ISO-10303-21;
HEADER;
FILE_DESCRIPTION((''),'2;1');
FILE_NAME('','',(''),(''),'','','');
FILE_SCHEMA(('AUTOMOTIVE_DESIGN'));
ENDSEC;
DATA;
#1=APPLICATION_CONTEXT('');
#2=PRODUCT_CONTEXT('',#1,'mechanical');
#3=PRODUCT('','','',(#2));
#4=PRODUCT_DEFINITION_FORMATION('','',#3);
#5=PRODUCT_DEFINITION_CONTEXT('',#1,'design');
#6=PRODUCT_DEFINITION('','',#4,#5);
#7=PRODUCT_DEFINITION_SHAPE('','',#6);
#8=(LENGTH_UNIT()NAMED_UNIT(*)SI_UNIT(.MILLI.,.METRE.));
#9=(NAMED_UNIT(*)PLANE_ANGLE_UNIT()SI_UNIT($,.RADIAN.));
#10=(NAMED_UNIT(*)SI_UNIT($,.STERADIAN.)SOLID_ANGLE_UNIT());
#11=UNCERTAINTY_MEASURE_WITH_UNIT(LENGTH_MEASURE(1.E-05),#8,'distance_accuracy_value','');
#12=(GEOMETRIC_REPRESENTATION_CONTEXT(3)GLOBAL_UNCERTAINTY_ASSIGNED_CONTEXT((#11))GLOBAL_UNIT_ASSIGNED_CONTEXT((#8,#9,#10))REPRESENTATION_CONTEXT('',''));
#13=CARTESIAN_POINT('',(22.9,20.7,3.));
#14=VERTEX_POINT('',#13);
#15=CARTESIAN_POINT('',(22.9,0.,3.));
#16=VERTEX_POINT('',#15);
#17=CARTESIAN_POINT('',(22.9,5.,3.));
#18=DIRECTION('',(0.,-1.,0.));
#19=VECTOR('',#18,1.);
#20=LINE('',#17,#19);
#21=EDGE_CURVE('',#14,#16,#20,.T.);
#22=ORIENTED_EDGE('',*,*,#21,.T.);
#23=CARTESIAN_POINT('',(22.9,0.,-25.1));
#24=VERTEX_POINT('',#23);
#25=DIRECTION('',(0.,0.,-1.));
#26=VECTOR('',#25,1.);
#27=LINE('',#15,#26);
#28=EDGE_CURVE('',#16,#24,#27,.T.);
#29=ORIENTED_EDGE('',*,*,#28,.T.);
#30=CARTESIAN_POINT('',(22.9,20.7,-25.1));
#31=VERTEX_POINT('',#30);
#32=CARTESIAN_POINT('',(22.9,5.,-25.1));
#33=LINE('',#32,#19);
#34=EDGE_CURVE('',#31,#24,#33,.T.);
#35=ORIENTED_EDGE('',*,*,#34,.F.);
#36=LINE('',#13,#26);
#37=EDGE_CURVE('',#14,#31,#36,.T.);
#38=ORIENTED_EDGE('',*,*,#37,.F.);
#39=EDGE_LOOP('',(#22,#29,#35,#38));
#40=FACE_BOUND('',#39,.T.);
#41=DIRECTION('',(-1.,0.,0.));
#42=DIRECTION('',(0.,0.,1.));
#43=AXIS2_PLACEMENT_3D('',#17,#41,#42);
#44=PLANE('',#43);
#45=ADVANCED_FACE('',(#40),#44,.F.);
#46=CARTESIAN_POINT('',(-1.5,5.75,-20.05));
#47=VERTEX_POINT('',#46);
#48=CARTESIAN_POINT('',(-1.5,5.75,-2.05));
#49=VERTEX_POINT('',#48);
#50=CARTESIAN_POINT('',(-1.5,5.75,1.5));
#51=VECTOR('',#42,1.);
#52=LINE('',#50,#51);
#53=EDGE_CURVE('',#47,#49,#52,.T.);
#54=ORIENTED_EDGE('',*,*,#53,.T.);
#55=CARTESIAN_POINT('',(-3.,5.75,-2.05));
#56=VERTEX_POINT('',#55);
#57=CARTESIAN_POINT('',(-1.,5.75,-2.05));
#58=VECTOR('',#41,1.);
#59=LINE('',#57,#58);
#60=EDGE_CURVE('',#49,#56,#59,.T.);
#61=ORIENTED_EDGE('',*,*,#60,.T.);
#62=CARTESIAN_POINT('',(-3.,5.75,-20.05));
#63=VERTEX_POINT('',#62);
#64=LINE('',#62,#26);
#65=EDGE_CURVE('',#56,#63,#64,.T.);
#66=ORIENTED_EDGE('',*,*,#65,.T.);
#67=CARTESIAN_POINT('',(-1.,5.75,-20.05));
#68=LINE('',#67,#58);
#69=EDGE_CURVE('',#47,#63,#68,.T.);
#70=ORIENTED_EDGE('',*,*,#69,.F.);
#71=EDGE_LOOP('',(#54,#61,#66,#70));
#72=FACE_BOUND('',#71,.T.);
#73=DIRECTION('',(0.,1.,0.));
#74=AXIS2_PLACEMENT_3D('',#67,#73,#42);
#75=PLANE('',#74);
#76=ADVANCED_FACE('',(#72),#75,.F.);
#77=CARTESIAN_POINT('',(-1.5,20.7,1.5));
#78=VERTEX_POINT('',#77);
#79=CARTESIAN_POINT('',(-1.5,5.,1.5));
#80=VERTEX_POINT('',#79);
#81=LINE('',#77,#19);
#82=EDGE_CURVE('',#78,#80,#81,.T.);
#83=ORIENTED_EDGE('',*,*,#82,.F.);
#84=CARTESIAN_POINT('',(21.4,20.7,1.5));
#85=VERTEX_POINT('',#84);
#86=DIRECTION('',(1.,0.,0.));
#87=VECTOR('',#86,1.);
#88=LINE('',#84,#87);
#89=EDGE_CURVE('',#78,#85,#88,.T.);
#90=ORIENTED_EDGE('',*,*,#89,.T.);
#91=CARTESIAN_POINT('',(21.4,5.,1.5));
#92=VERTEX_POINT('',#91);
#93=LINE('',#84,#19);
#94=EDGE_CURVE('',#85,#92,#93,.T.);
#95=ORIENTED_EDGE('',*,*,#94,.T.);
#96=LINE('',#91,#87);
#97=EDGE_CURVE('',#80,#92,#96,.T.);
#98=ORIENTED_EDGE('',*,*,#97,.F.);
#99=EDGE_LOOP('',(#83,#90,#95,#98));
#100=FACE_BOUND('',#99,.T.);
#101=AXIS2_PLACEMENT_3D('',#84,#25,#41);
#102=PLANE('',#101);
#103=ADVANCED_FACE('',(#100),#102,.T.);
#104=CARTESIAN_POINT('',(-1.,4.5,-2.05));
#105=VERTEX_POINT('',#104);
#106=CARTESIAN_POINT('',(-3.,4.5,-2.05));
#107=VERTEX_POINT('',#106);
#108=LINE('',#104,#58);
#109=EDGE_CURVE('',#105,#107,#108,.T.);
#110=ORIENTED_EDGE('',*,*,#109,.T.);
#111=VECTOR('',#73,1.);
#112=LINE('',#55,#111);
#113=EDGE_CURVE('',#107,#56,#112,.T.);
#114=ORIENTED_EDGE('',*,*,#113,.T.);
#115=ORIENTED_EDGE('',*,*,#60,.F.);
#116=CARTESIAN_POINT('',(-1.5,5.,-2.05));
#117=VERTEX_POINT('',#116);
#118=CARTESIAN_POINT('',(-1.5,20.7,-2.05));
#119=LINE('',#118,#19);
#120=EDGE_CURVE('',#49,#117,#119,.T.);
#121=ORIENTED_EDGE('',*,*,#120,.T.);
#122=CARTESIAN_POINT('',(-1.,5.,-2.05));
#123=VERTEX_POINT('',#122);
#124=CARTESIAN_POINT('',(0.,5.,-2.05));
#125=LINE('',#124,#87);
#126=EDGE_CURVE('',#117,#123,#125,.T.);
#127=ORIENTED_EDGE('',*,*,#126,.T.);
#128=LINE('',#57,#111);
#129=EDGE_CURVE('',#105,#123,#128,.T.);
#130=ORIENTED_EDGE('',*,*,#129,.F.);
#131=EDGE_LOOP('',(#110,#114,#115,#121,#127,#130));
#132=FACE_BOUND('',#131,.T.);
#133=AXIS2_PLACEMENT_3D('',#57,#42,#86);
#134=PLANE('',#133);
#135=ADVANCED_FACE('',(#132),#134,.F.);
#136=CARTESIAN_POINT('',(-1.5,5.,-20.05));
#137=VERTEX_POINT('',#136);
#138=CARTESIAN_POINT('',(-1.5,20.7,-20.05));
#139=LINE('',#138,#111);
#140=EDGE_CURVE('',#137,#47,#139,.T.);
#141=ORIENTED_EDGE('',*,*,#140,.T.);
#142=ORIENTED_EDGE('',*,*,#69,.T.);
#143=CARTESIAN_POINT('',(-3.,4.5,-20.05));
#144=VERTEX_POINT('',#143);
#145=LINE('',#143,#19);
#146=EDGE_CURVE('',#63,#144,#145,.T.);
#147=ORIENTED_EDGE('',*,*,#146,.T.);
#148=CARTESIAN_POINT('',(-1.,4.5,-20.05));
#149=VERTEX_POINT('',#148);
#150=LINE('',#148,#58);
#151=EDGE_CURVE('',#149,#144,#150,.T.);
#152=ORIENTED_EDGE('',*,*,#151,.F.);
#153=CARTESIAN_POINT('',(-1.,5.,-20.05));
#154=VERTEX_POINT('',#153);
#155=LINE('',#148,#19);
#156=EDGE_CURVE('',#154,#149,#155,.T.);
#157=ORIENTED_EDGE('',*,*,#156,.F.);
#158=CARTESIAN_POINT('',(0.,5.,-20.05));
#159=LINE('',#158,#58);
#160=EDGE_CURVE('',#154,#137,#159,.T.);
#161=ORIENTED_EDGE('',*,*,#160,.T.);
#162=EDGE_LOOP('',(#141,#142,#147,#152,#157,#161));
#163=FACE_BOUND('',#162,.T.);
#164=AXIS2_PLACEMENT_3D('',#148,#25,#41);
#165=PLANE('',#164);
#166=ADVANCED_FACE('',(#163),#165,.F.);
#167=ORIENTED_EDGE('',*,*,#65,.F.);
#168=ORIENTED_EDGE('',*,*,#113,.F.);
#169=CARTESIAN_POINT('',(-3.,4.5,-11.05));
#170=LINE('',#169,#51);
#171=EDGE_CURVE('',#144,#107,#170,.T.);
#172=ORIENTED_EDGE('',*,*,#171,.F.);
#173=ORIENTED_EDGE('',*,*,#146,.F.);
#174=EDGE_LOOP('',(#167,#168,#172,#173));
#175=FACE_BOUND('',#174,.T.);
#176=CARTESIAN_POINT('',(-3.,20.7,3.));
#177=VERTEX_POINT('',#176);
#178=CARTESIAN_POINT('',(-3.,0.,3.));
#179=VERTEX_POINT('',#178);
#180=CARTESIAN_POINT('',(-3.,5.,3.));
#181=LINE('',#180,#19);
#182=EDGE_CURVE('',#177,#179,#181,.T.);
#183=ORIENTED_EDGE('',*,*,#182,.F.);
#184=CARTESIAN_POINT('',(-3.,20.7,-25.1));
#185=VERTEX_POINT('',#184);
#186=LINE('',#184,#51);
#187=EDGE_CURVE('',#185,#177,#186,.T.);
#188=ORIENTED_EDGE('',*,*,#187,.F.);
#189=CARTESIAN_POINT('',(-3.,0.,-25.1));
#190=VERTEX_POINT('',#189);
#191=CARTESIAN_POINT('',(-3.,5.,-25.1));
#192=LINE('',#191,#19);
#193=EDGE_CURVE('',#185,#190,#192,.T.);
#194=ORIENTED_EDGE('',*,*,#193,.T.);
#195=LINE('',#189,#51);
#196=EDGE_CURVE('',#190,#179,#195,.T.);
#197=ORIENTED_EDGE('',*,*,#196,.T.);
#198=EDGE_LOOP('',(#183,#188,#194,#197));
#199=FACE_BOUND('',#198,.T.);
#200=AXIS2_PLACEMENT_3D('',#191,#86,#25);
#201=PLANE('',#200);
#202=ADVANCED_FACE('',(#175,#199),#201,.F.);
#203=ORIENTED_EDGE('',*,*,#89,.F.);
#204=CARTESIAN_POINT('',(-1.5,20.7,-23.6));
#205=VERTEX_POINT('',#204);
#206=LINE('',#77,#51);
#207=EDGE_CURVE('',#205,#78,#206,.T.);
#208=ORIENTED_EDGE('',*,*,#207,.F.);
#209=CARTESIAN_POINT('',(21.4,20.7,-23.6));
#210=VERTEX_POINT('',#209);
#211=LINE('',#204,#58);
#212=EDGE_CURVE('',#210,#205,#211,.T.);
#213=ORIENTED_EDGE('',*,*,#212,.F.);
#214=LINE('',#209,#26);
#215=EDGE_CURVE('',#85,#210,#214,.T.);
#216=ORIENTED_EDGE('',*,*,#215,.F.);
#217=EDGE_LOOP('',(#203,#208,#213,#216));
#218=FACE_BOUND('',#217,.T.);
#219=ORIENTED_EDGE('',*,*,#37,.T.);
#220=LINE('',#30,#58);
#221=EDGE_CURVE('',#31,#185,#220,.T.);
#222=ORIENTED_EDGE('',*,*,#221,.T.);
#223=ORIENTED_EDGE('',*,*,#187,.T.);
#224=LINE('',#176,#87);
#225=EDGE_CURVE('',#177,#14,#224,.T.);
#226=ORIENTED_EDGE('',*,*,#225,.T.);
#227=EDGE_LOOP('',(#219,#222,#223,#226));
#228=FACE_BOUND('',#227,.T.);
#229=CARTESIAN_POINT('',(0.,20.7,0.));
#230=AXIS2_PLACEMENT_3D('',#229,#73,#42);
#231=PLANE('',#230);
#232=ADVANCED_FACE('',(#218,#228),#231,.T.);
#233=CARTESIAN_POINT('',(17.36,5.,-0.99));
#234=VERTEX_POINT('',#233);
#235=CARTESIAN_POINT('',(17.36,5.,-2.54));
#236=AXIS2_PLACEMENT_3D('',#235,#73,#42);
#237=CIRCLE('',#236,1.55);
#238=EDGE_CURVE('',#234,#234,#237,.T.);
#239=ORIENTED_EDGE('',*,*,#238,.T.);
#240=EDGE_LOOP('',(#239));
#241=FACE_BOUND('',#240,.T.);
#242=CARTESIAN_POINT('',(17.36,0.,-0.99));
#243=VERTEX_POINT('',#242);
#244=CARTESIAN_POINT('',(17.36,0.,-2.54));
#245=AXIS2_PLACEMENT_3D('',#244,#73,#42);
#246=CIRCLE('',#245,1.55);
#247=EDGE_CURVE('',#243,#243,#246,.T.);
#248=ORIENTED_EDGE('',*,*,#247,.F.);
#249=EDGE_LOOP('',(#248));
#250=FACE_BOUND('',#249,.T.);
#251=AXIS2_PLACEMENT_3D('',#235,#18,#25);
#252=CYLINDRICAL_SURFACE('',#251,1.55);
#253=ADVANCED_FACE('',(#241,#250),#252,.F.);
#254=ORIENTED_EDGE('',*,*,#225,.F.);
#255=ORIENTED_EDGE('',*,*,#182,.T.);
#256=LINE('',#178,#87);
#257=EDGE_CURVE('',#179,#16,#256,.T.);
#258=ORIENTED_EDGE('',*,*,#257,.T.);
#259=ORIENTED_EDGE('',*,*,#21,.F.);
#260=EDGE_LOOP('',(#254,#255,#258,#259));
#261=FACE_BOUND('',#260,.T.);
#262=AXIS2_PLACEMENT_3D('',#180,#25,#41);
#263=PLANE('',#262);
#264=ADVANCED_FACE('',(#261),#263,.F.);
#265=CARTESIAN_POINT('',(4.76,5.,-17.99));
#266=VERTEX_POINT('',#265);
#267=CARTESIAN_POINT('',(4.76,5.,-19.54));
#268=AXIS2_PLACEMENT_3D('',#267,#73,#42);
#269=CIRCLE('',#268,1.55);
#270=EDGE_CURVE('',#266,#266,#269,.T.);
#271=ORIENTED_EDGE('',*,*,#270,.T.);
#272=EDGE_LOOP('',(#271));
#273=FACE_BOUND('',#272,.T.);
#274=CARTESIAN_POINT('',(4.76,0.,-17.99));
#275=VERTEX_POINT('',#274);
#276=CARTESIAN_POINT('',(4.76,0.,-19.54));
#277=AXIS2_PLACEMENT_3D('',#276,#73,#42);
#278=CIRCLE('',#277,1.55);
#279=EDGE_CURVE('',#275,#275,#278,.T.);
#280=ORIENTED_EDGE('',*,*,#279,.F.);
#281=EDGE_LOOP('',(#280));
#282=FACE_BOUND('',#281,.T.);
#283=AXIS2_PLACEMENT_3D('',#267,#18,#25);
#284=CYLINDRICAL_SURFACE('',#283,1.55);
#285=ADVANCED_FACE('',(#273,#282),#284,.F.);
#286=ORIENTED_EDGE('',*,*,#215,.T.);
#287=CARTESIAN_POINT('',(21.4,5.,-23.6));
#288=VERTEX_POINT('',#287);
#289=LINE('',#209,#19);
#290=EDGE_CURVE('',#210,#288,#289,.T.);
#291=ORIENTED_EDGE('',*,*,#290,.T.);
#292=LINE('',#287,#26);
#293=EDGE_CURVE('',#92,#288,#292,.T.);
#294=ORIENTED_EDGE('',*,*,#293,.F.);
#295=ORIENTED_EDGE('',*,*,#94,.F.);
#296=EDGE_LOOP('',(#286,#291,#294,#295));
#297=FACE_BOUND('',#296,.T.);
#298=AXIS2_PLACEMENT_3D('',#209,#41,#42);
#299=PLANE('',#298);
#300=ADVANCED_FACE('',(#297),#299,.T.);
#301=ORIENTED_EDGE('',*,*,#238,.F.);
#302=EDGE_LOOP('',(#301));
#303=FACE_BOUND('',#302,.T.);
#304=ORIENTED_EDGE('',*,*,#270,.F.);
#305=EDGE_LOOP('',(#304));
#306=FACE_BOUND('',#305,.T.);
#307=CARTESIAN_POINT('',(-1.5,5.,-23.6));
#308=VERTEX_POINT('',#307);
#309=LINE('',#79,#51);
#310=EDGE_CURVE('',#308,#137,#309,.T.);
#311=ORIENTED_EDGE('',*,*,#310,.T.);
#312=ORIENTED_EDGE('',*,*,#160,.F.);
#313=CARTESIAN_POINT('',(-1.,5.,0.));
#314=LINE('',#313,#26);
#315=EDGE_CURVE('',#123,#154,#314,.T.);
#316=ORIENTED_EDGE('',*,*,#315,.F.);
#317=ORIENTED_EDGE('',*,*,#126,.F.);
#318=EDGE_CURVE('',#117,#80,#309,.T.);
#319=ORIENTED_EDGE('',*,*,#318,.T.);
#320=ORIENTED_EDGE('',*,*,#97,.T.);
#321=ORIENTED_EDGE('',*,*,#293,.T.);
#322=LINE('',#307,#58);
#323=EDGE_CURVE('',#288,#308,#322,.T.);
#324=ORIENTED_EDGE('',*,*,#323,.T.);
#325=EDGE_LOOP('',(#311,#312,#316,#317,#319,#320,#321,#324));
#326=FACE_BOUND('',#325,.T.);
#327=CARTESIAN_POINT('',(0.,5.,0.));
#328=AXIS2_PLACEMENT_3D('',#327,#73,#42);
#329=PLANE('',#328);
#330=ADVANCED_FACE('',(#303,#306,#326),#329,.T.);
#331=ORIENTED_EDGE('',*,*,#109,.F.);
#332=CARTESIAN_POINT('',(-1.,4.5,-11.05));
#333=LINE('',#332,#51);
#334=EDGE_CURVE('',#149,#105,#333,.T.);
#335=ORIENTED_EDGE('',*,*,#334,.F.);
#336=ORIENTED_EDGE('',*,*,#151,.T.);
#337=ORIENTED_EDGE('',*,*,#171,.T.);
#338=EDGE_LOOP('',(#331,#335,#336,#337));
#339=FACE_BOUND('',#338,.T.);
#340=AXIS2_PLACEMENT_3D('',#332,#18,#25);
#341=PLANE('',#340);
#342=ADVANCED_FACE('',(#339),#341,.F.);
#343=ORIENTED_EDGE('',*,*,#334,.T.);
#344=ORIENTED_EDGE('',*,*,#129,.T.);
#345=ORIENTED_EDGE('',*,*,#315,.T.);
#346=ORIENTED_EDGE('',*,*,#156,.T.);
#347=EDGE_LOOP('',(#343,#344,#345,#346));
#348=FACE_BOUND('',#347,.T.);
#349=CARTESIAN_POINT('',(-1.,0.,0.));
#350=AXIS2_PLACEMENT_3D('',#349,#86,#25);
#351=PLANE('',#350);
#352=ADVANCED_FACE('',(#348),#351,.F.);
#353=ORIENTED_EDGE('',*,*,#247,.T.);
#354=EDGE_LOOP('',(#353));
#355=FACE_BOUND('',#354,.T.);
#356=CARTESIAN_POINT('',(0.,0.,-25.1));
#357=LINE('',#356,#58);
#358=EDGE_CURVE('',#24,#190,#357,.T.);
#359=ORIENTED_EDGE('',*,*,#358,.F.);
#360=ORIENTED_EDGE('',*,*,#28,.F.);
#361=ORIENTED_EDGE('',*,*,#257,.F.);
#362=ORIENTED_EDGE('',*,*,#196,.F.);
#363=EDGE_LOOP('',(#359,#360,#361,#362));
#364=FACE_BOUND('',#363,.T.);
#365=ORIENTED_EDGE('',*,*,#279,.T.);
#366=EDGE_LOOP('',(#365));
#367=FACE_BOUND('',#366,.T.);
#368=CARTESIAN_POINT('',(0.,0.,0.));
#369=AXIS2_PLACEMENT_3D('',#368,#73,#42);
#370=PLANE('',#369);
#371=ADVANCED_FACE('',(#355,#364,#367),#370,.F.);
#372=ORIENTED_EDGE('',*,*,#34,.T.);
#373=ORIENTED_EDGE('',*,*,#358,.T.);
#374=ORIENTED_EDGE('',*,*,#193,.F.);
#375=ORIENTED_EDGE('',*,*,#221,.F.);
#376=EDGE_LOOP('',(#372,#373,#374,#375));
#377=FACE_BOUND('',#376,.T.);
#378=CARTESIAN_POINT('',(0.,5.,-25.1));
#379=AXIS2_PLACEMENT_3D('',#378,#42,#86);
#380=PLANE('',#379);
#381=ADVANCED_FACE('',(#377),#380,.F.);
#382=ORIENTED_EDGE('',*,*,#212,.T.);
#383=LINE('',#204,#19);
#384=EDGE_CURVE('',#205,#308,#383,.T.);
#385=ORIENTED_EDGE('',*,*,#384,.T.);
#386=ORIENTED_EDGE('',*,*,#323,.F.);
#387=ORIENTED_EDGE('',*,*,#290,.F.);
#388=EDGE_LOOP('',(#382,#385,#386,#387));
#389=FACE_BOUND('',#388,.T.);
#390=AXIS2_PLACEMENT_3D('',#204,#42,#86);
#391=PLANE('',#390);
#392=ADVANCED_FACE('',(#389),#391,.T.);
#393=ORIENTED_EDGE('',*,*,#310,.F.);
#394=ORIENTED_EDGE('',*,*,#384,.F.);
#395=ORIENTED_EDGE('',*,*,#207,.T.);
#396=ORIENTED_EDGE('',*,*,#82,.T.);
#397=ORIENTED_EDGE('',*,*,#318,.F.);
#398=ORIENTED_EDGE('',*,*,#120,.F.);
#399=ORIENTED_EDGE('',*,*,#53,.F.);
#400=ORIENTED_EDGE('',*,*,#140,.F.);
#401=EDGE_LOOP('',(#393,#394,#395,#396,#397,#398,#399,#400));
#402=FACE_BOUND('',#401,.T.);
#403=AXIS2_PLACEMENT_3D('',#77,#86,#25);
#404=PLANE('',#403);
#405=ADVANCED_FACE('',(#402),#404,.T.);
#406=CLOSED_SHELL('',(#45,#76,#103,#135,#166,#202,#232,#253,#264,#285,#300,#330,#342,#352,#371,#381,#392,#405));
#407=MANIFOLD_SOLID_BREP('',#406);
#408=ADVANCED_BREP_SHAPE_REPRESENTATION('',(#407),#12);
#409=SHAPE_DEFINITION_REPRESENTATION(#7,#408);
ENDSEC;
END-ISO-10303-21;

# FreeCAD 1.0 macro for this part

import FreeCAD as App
import Part
import Sketcher

V = App.Vector

doc = App.newDocument("Part")
params = doc.addObject("Spreadsheet::Sheet", "Params")
for row, (alias, value) in enumerate([
    ("sketch1_diameter", "3.1 mm"),
    ("sketch1_width", "25.9 mm"),
    ("sketch1_height", "28.1 mm"),
    ("pad1_length", "5 mm"),
    ("sketch2_width", "25.9 mm"),
    ("sketch2_width2", "22.9 mm"),
    ("sketch2_height", "28.1 mm"),
    ("sketch2_height2", "25.1 mm"),
    ("pad2_length", "15.7 mm"),
    ("sketch3_height", "18 mm"),
    ("sketch3_width", "1.25 mm"),
    ("pocket1_length", "2 mm"),
], start=1):
    params.set(f"A{row}", alias)
    params.set(f"B{row}", "=" + value)
    params.setAlias(f"B{row}", alias)

body = doc.addObject("PartDesign::Body", "Body")

# Sketch on XZ plane
sketch1 = body.newObject("Sketcher::SketchObject", "Sketch")
sketch1.AttachmentSupport = (doc.getObject("XZ_Plane"), [""])
sketch1.MapMode = "FlatFace"
sketch1.addGeometry(Part.LineSegment(V(-3, -25.1, 0), V(-3, 3, 0)), False)
sketch1.addGeometry(Part.LineSegment(V(-3, 3, 0), V(22.9, 3, 0)), False)
sketch1.addGeometry(Part.LineSegment(V(22.9, 3, 0), V(22.9, -25.1, 0)), False)
sketch1.addGeometry(Part.LineSegment(V(22.9, -25.1, 0), V(-3, -25.1, 0)), False)
sketch1.addGeometry(Part.Circle(V(17.4, -2.5, 0), V(0, 0, 1), 1.6), False)
sketch1.addGeometry(Part.Circle(V(4.8, -19.5, 0), V(0, 0, 1), 1.6), False)
sketch1.addConstraint(Sketcher.Constraint("Coincident", 0, 2, 1, 1))
sketch1.addConstraint(Sketcher.Constraint("Coincident", 1, 2, 2, 1))
sketch1.addConstraint(Sketcher.Constraint("Coincident", 2, 2, 3, 1))
sketch1.addConstraint(Sketcher.Constraint("Coincident", 3, 2, 0, 1))
sketch1.addConstraint(Sketcher.Constraint("Vertical", 0))
sketch1.addConstraint(Sketcher.Constraint("Horizontal", 1))
sketch1.addConstraint(Sketcher.Constraint("Vertical", 2))
sketch1.addConstraint(Sketcher.Constraint("Horizontal", 3))
sketch1.addConstraint(Sketcher.Constraint("Equal", 4, 5))
sketch1.addConstraint(Sketcher.Constraint("Diameter", 4, 3.1))
sketch1.addConstraint(Sketcher.Constraint("DistanceX", 1, 1, 1, 2, 25.9))
sketch1.addConstraint(Sketcher.Constraint("DistanceY", 0, 1, 0, 2, 28.1))
sketch1.addConstraint(Sketcher.Constraint("DistanceX", 0, 2, -1, 1, 3.0))
sketch1.addConstraint(Sketcher.Constraint("DistanceY", -1, 1, 0, 2, 3.0))
sketch1.addConstraint(Sketcher.Constraint("DistanceY", 5, 3, 4, 3, 17.0))
sketch1.addConstraint(Sketcher.Constraint("DistanceX", 5, 3, 4, 3, 12.6))
sketch1.addConstraint(Sketcher.Constraint("DistanceX", -1, 1, 4, 3, 17.36))
sketch1.addConstraint(Sketcher.Constraint("DistanceY", 4, 3, -1, 1, 2.54))
sketch1.setExpression("Constraints[9]", "Params.sketch1_diameter")
sketch1.setExpression("Constraints[10]", "Params.sketch1_width")
sketch1.setExpression("Constraints[11]", "Params.sketch1_height")
pad1 = body.newObject("PartDesign::Pad", "Pad")
pad1.Profile = sketch1
pad1.setExpression("Length", "Params.pad1_length")
pad1.Reversed = True

# Sketch on XZ plane
sketch2 = body.newObject("Sketcher::SketchObject", "Sketch001")
sketch2.AttachmentSupport = (doc.getObject("XZ_Plane"), [""])
sketch2.MapMode = "FlatFace"
sketch2.AttachmentOffset = App.Placement(V(0, 0, -5), App.Rotation())
sketch2.addGeometry(Part.LineSegment(V(-3, -25, 0), V(-3, 3, 0)), False)
sketch2.addGeometry(Part.LineSegment(V(-3, 3, 0), V(23, 3, 0)), False)
sketch2.addGeometry(Part.LineSegment(V(23, 3, 0), V(23, -25, 0)), False)
sketch2.addGeometry(Part.LineSegment(V(23, -25, 0), V(-3, -25, 0)), False)
sketch2.addGeometry(Part.LineSegment(V(21, 2, 0), V(-2, 2, 0)), False)
sketch2.addGeometry(Part.LineSegment(V(-2, 2, 0), V(-2, -24, 0)), False)
sketch2.addGeometry(Part.LineSegment(V(-2, -24, 0), V(21, -24, 0)), False)
sketch2.addGeometry(Part.LineSegment(V(21, -24, 0), V(21, 2, 0)), False)
sketch2.addConstraint(Sketcher.Constraint("Coincident", 0, 2, 1, 1))
sketch2.addConstraint(Sketcher.Constraint("Coincident", 1, 2, 2, 1))
sketch2.addConstraint(Sketcher.Constraint("Coincident", 2, 2, 3, 1))
sketch2.addConstraint(Sketcher.Constraint("Coincident", 3, 2, 0, 1))
sketch2.addConstraint(Sketcher.Constraint("Coincident", 4, 2, 5, 1))
sketch2.addConstraint(Sketcher.Constraint("Coincident", 5, 2, 6, 1))
sketch2.addConstraint(Sketcher.Constraint("Coincident", 6, 2, 7, 1))
sketch2.addConstraint(Sketcher.Constraint("Coincident", 7, 2, 4, 1))
sketch2.addConstraint(Sketcher.Constraint("Vertical", 0))
sketch2.addConstraint(Sketcher.Constraint("Horizontal", 1))
sketch2.addConstraint(Sketcher.Constraint("Vertical", 2))
sketch2.addConstraint(Sketcher.Constraint("Horizontal", 3))
sketch2.addConstraint(Sketcher.Constraint("Horizontal", 4))
sketch2.addConstraint(Sketcher.Constraint("Vertical", 5))
sketch2.addConstraint(Sketcher.Constraint("Horizontal", 6))
sketch2.addConstraint(Sketcher.Constraint("Vertical", 7))
sketch2.addConstraint(Sketcher.Constraint("DistanceX", 1, 1, 1, 2, 25.9))
sketch2.addConstraint(Sketcher.Constraint("DistanceX", 4, 2, 4, 1, 22.9))
sketch2.addConstraint(Sketcher.Constraint("DistanceY", 0, 1, 0, 2, 28.1))
sketch2.addConstraint(Sketcher.Constraint("DistanceY", 5, 2, 5, 1, 25.1))
sketch2.addConstraint(Sketcher.Constraint("DistanceX", 0, 2, -1, 1, 3.0))
sketch2.addConstraint(Sketcher.Constraint("DistanceY", -1, 1, 0, 2, 3.0))
sketch2.addConstraint(Sketcher.Constraint("DistanceX", 4, 2, -1, 1, 1.5))
sketch2.addConstraint(Sketcher.Constraint("DistanceY", -1, 1, 4, 2, 1.5))
sketch2.setExpression("Constraints[16]", "Params.sketch2_width")
sketch2.setExpression("Constraints[17]", "Params.sketch2_width2")
sketch2.setExpression("Constraints[18]", "Params.sketch2_height")
sketch2.setExpression("Constraints[19]", "Params.sketch2_height2")
pad2 = body.newObject("PartDesign::Pad", "Pad001")
pad2.Profile = sketch2
pad2.setExpression("Length", "Params.pad2_length")
pad2.Reversed = True

# Sketch on YZ plane
sketch3 = body.newObject("Sketcher::SketchObject", "Sketch002")
sketch3.AttachmentSupport = (doc.getObject("YZ_Plane"), [""])
sketch3.MapMode = "FlatFace"
sketch3.AttachmentOffset = App.Placement(V(0, 0, -3), App.Rotation())
sketch3.addGeometry(Part.LineSegment(V(4.5, -20.1, 0), V(4.5, -2, 0)), False)
sketch3.addGeometry(Part.LineSegment(V(4.5, -2, 0), V(5.8, -2, 0)), False)
sketch3.addGeometry(Part.LineSegment(V(5.8, -2, 0), V(5.8, -20.1, 0)), False)
sketch3.addGeometry(Part.LineSegment(V(5.8, -20.1, 0), V(4.5, -20.1, 0)), False)
sketch3.addConstraint(Sketcher.Constraint("Coincident", 0, 2, 1, 1))
sketch3.addConstraint(Sketcher.Constraint("Coincident", 1, 2, 2, 1))
sketch3.addConstraint(Sketcher.Constraint("Coincident", 2, 2, 3, 1))
sketch3.addConstraint(Sketcher.Constraint("Coincident", 3, 2, 0, 1))
sketch3.addConstraint(Sketcher.Constraint("Vertical", 0))
sketch3.addConstraint(Sketcher.Constraint("Horizontal", 1))
sketch3.addConstraint(Sketcher.Constraint("Vertical", 2))
sketch3.addConstraint(Sketcher.Constraint("Horizontal", 3))
sketch3.addConstraint(Sketcher.Constraint("DistanceY", 0, 1, 0, 2, 18.0))
sketch3.addConstraint(Sketcher.Constraint("DistanceX", 1, 1, 1, 2, 1.25))
sketch3.addConstraint(Sketcher.Constraint("DistanceX", -1, 1, 0, 2, 4.5))
sketch3.addConstraint(Sketcher.Constraint("DistanceY", 0, 2, -1, 1, 2.05))
sketch3.setExpression("Constraints[8]", "Params.sketch3_height")
sketch3.setExpression("Constraints[9]", "Params.sketch3_width")
pocket1 = body.newObject("PartDesign::Pocket", "Pocket")
pocket1.Profile = sketch3
pocket1.setExpression("Length", "Params.pocket1_length")
pocket1.Reversed = True

doc.recompute()
